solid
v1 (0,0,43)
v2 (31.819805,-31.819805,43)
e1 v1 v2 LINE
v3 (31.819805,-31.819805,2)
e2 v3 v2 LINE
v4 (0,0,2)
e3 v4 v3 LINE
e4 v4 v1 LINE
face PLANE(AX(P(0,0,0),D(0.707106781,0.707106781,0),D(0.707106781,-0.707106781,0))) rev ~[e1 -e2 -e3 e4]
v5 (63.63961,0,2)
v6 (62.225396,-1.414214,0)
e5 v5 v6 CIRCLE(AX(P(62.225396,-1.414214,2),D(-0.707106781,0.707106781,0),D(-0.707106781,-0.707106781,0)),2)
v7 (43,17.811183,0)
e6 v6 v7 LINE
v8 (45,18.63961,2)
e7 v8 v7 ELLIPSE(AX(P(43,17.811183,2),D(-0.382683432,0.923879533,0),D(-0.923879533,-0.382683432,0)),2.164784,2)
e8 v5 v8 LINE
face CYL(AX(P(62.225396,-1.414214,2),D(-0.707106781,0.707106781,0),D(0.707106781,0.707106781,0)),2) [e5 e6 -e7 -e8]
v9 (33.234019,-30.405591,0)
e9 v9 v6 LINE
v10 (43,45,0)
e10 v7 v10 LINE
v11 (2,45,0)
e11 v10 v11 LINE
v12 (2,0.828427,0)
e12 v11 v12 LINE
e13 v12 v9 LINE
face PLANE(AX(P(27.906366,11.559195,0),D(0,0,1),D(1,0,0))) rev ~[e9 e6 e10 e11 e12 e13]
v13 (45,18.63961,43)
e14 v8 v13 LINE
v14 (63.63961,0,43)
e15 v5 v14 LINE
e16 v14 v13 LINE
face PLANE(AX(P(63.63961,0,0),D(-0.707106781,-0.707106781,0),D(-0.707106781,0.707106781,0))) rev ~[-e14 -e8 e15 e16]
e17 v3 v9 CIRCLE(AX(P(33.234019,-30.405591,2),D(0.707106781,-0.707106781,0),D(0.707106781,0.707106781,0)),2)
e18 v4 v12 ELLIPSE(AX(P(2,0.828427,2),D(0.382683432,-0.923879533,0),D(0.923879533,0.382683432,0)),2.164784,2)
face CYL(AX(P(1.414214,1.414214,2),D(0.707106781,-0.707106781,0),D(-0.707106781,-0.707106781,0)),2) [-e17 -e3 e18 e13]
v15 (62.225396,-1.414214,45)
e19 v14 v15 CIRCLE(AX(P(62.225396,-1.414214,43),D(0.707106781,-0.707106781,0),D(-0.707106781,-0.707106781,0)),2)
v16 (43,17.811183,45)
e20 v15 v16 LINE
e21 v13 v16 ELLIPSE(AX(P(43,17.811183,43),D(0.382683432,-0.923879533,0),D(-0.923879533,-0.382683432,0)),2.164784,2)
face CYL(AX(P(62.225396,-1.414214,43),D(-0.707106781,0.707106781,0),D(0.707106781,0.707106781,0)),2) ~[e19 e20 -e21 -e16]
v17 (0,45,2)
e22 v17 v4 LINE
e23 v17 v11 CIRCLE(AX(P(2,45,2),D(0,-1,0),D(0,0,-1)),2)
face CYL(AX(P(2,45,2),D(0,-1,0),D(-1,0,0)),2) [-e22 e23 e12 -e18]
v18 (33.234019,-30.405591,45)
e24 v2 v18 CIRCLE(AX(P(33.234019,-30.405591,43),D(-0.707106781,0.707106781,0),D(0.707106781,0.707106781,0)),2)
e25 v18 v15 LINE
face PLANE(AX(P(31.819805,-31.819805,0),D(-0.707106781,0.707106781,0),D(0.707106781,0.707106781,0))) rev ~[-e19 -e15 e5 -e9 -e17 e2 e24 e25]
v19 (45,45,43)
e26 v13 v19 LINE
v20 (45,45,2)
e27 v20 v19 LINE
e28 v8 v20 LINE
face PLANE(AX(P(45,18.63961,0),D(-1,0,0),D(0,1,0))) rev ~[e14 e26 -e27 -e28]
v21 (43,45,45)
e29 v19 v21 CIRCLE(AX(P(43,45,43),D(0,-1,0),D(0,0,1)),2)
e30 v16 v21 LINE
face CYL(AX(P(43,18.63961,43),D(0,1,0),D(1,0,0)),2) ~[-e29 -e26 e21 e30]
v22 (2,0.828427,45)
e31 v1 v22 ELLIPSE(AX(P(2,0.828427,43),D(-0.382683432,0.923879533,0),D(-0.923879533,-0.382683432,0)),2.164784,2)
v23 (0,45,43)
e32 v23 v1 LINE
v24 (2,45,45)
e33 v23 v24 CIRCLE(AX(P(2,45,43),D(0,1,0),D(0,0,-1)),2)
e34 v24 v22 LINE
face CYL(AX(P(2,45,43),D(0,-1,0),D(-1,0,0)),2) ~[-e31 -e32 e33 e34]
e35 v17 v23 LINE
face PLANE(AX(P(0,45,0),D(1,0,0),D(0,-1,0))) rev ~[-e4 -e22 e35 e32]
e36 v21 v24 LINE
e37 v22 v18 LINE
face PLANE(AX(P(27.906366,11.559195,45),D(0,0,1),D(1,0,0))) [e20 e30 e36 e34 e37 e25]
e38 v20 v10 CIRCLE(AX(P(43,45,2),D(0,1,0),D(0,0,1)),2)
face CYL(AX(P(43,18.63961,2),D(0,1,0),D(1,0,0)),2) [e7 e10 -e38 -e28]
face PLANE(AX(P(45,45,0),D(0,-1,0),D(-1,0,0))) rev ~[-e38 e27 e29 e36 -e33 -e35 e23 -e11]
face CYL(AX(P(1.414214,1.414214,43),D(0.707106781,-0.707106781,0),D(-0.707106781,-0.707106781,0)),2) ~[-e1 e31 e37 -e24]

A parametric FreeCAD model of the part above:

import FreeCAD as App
import Part
import Sketcher
from FreeCAD import Vector


def edges_at(feature, points):
    """Names of the edges that pass closest to the given points."""
    edges = feature.Shape.Edges
    near = lambda p: min(range(len(edges)), key=lambda i: edges[i].distToShape(Part.Vertex(*p))[0])
    return sorted({f"Edge{near(p) + 1}" for p in points})

doc = App.newDocument("Part")
params = doc.addObject("Spreadsheet::Sheet", "Params")
for row, (alias, value) in enumerate([
    ("sketch1_width", "45 mm"),
    ("sketch1_length", "45 mm"),
    ("pad1_length", "45 mm"),
    ("fillet_radius", "2 mm"),
], start=1):
    params.set(f"A{row}", alias)
    params.set(f"B{row}", "=" + value)
    params.setAlias(f"B{row}", alias)

body = doc.addObject("PartDesign::Body", "Body")

# Sketch on XY plane
sketch1 = body.newObject("Sketcher::SketchObject", "Sketch")
sketch1.AttachmentSupport = (doc.getObject("XY_Plane"), [""])
sketch1.MapMode = "FlatFace"
sketch1.addGeometry([
    Part.LineSegment(Vector(0, 45, 0), Vector(0, 0, 0)),  # 0
    Part.LineSegment(Vector(0, 0, 0), Vector(32, -32, 0)),  # 1
    Part.LineSegment(Vector(32, -32, 0), Vector(64, 0, 0)),  # 2
    Part.LineSegment(Vector(64, 0, 0), Vector(45, 19, 0)),  # 3
    Part.LineSegment(Vector(45, 19, 0), Vector(45, 45, 0)),  # 4
    Part.LineSegment(Vector(45, 45, 0), Vector(0, 45, 0)),  # 5
], False)
sketch1.addConstraint([
    Sketcher.Constraint("Coincident", 0, 2, 1, 1),
    Sketcher.Constraint("Coincident", 1, 2, 2, 1),
    Sketcher.Constraint("Coincident", 2, 2, 3, 1),
    Sketcher.Constraint("Coincident", 3, 2, 4, 1),
    Sketcher.Constraint("Coincident", 4, 2, 5, 1),
    Sketcher.Constraint("Coincident", 5, 2, 0, 1),
    Sketcher.Constraint("Vertical", 0),
    Sketcher.Constraint("Vertical", 4),
    Sketcher.Constraint("Horizontal", 5),
    Sketcher.Constraint("Coincident", 0, 2, -1, 1),
    Sketcher.Constraint("PointOnObject", 2, 2, -1),
    Sketcher.Constraint("Perpendicular", 1, 2),
    Sketcher.Constraint("Perpendicular", 2, 3),
    Sketcher.Constraint("Equal", 5, 0),
    Sketcher.Constraint("Equal", 1, 2),
    Sketcher.Constraint("DistanceX", 5, 2, 5, 1, 45.0),
    Sketcher.Constraint("Distance", 1, 45.0),
])
sketch1.setExpression("Constraints[15]", "Params.sketch1_width")
sketch1.setExpression("Constraints[16]", "Params.sketch1_length")
pad1 = body.newObject("PartDesign::Pad", "Pad")
pad1.Profile = sketch1
pad1.setExpression("Length", "Params.pad1_length")
doc.recompute()

fillet = body.newObject("PartDesign::Fillet", "Fillet")
fillet.Base = (pad1, edges_at(pad1, [
    (54.32, 9.32, 0),
    (45, 31.82, 0),
    (15.91, -15.91, 0),
    (0, 22.5, 0),
    (54.32, 9.32, 45),
    (45, 31.82, 45),
    (0, 22.5, 45),
    (15.91, -15.91, 45),
]))
fillet.setExpression("Radius", "Params.fillet_radius")

doc.recompute()
